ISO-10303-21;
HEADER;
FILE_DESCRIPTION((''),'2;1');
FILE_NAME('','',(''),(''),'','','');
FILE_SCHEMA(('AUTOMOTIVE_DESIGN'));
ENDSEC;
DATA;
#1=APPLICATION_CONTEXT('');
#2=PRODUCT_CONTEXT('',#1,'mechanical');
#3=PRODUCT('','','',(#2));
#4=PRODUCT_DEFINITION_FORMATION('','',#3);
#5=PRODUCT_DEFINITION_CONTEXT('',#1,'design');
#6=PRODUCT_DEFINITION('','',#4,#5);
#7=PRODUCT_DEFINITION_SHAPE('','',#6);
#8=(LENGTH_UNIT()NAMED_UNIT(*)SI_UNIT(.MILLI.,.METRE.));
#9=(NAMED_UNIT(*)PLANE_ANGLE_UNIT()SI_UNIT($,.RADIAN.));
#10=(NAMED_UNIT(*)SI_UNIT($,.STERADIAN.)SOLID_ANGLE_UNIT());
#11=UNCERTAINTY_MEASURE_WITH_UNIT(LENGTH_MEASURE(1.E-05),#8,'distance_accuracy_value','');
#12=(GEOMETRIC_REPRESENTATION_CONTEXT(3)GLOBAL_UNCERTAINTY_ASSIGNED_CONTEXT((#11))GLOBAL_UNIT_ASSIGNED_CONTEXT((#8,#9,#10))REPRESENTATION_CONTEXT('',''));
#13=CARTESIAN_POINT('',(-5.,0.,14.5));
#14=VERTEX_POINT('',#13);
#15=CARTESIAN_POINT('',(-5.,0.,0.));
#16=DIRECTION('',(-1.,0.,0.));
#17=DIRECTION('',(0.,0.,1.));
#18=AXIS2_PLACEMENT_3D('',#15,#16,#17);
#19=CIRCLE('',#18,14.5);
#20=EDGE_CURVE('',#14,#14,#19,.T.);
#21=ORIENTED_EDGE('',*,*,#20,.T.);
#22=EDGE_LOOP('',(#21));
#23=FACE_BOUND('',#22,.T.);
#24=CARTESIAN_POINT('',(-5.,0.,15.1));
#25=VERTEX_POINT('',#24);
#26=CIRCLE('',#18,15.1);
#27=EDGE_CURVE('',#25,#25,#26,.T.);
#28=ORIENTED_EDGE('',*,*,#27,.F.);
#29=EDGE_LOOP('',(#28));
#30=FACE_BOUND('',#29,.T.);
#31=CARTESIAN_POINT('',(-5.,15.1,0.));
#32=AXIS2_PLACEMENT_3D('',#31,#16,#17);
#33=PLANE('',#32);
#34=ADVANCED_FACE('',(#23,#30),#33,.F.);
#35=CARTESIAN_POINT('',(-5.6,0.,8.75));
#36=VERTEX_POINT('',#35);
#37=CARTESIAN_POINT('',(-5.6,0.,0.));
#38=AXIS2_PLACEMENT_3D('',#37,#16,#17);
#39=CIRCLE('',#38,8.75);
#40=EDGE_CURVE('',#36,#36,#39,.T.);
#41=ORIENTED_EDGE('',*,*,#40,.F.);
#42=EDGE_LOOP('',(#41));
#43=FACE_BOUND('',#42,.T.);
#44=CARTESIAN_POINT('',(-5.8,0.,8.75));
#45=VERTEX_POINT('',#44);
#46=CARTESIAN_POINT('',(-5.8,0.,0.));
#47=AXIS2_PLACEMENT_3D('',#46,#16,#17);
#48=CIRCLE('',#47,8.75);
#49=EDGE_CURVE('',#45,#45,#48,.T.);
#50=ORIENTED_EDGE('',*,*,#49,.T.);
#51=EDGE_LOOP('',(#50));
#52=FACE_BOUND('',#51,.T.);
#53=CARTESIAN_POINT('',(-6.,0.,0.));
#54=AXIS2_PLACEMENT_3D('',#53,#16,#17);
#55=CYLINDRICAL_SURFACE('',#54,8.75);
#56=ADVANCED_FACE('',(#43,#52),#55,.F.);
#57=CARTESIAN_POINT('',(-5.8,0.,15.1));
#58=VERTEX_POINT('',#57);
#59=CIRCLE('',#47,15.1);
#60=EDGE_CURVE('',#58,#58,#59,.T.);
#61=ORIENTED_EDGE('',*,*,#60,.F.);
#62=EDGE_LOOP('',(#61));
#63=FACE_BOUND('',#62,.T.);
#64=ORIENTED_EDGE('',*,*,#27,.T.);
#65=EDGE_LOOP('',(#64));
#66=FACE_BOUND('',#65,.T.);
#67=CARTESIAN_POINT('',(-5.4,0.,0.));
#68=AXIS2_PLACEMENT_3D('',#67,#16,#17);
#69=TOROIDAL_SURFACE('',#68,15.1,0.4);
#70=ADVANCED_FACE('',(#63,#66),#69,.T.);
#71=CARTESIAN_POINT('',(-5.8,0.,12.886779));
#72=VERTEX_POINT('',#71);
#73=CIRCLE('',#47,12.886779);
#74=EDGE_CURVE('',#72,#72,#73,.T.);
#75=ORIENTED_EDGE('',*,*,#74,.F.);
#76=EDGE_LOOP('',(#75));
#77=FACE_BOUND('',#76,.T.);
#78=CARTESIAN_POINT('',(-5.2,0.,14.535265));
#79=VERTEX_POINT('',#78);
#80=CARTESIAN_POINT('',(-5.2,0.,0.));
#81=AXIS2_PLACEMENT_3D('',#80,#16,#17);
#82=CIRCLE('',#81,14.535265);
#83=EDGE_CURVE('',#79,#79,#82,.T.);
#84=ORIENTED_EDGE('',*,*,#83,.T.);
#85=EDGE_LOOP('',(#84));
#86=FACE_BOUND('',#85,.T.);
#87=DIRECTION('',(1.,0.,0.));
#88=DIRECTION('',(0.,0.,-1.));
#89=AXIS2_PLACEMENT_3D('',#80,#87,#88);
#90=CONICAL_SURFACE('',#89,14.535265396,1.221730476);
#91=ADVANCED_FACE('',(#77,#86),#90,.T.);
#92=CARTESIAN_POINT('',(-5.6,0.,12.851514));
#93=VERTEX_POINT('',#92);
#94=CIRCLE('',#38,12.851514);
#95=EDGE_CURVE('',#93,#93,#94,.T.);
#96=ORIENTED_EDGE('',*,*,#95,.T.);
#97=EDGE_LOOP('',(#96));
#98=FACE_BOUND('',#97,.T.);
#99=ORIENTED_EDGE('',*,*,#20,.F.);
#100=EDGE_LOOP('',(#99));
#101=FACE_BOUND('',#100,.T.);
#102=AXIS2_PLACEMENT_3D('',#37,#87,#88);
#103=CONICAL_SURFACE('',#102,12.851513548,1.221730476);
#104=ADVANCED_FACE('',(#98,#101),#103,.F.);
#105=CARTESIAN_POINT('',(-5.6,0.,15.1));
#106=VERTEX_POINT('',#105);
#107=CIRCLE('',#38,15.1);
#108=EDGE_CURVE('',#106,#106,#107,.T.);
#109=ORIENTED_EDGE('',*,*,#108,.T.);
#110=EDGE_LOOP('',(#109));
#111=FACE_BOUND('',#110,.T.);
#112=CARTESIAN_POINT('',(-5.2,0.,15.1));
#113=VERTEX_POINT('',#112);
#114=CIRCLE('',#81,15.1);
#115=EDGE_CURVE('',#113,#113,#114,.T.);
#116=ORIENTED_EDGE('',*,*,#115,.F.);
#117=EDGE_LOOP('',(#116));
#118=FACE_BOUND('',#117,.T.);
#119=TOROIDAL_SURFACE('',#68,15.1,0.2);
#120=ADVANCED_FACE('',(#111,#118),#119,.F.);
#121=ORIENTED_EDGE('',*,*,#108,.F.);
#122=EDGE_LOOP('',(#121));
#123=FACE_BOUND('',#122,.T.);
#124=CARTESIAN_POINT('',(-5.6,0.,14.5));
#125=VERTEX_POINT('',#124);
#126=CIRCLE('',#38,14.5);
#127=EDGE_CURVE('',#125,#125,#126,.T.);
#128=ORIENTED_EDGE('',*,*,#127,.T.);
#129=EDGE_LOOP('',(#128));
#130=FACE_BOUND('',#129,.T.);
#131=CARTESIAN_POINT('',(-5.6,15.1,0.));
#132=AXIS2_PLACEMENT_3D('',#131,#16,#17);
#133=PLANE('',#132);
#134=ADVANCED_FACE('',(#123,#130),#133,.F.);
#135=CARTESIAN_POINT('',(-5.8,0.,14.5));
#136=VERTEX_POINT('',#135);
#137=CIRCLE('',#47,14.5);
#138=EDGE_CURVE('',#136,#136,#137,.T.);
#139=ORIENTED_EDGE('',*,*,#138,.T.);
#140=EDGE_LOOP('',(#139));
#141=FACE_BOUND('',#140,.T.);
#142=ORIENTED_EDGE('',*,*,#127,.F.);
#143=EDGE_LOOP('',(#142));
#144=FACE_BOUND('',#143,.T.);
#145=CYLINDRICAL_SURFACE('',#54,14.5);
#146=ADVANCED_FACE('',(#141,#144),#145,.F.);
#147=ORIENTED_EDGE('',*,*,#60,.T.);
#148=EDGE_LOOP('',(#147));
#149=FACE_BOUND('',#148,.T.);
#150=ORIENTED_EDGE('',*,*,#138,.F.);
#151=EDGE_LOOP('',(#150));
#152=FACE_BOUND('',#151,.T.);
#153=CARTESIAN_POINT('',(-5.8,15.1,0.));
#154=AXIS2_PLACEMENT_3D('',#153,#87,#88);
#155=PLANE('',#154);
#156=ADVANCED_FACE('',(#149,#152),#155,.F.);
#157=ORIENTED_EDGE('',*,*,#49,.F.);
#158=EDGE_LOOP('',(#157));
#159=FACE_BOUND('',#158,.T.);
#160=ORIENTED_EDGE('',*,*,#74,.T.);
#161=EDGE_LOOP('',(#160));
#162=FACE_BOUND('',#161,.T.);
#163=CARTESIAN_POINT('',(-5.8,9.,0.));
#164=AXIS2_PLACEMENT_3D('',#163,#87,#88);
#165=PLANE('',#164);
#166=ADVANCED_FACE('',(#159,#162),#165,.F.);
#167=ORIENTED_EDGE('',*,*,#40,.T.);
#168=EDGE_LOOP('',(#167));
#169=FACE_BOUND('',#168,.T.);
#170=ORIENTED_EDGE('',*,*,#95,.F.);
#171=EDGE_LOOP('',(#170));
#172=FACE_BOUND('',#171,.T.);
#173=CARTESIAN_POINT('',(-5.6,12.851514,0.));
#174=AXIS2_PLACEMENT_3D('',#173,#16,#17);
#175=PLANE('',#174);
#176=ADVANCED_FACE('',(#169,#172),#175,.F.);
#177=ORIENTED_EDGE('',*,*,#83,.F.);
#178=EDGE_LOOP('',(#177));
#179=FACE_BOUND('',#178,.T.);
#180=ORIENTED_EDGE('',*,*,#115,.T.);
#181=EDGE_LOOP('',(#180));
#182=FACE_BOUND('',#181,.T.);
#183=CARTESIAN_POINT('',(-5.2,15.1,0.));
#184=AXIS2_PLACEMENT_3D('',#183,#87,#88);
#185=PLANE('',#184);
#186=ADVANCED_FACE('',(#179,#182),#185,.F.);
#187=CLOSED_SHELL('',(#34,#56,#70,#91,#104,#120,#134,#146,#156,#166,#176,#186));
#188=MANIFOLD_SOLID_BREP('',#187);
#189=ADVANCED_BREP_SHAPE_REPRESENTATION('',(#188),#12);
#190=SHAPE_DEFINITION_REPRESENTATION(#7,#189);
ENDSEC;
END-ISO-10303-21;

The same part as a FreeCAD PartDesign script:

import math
import FreeCAD as App
import Part
import Sketcher

V = App.Vector
Q = App.Units.Quantity

doc = App.newDocument("Part")
body = doc.addObject("PartDesign::Body", "Body")

sketch1 = body.newObject("Sketcher::SketchObject", "Sketch")
sketch1.AttachmentSupport = (doc.getObject("XY_Plane"), [""])
sketch1.MapMode = "FlatFace"
sketch1.addGeometry([
    Part.LineSegment(V(-5.8, 8.75, 0), V(-5.6, 8.75, 0)),
    Part.LineSegment(V(-5.6, 8.75, 0), V(-5.6, 12.85, 0)),
    Part.LineSegment(V(-5.6, 12.85, 0), V(-5, 14.5, 0)),
    Part.LineSegment(V(-5, 14.5, 0), V(-5, 15.1, 0)),
    Part.ArcOfCircle(Part.Circle(V(-5.4, 15.1, 0), V(0, 0, 1), 0.4), math.radians(0), math.radians(180)),
    Part.LineSegment(V(-5.8, 15.1, 0), V(-5.8, 14.5, 0)),
    Part.LineSegment(V(-5.8, 14.5, 0), V(-5.6, 14.5, 0)),
    Part.LineSegment(V(-5.6, 14.5, 0), V(-5.6, 15.1, 0)),
    Part.ArcOfCircle(Part.Circle(V(-5.4, 15.1, 0), V(0, 0, 1), 0.2), math.radians(0), math.radians(180)),
    Part.LineSegment(V(-5.2, 15.1, 0), V(-5.2, 14.54, 0)),
    Part.LineSegment(V(-5.2, 14.54, 0), V(-5.8, 12.89, 0)),
    Part.LineSegment(V(-5.8, 12.89, 0), V(-5.8, 8.75, 0)),
], False)
sketch1.addConstraint([
    Sketcher.Constraint("Coincident", 0, 2, 1, 1),
    Sketcher.Constraint("Coincident", 1, 2, 2, 1),
    Sketcher.Constraint("Coincident", 2, 2, 3, 1),
    Sketcher.Constraint("Tangent", 3, 2, 4, 1),
    Sketcher.Constraint("Tangent", 4, 2, 5, 1),
    Sketcher.Constraint("Coincident", 5, 2, 6, 1),
    Sketcher.Constraint("Coincident", 6, 2, 7, 1),
    Sketcher.Constraint("Tangent", 7, 2, 8, 2),
    Sketcher.Constraint("Tangent", 8, 1, 9, 1),
    Sketcher.Constraint("Coincident", 9, 2, 10, 1),
    Sketcher.Constraint("Coincident", 10, 2, 11, 1),
    Sketcher.Constraint("Coincident", 11, 2, 0, 1),
    Sketcher.Constraint("Horizontal", 0),
    Sketcher.Constraint("Vertical", 1),
    Sketcher.Constraint("Vertical", 3),
    Sketcher.Constraint("Vertical", 5),
    Sketcher.Constraint("Horizontal", 6),
    Sketcher.Constraint("Vertical", 7),
    Sketcher.Constraint("Vertical", 9),
    Sketcher.Constraint("Vertical", 11),
    Sketcher.Constraint("Coincident", 8, 3, 4, 3),
    Sketcher.Constraint("Parallel", 2, 10),
    Sketcher.Constraint("Horizontal", 2, 2, 5, 2),
    Sketcher.Constraint("Vertical", 1, 2, 6, 2),
    Sketcher.Constraint("Vertical", 5, 2, 10, 2),
    Sketcher.Constraint("Radius", 4, Q("0.4 mm")),
    Sketcher.Constraint("Radius", 8, Q("0.2 mm")),
    Sketcher.Constraint("Angle", 2, Q("70 deg")),
    Sketcher.Constraint("DistanceY", 3, 1, 3, 2, Q("0.6 mm")),
    Sketcher.Constraint("DistanceX", 2, 2, -1, 1, Q("5 mm")),
    Sketcher.Constraint("DistanceY", -1, 1, 4, 3, Q("15.1 mm")),
    Sketcher.Constraint("DistanceY", -1, 1, 0, 2, Q("8.75 mm")),
    Sketcher.Constraint("DistanceY", 11, 2, 11, 1, Q("4.136779 mm")),
])
revolution = body.newObject("PartDesign::Revolution", "Revolution")
revolution.Profile = sketch1
revolution.ReferenceAxis = (sketch1, ["H_Axis"])
revolution.Angle = 360

doc.recompute()
